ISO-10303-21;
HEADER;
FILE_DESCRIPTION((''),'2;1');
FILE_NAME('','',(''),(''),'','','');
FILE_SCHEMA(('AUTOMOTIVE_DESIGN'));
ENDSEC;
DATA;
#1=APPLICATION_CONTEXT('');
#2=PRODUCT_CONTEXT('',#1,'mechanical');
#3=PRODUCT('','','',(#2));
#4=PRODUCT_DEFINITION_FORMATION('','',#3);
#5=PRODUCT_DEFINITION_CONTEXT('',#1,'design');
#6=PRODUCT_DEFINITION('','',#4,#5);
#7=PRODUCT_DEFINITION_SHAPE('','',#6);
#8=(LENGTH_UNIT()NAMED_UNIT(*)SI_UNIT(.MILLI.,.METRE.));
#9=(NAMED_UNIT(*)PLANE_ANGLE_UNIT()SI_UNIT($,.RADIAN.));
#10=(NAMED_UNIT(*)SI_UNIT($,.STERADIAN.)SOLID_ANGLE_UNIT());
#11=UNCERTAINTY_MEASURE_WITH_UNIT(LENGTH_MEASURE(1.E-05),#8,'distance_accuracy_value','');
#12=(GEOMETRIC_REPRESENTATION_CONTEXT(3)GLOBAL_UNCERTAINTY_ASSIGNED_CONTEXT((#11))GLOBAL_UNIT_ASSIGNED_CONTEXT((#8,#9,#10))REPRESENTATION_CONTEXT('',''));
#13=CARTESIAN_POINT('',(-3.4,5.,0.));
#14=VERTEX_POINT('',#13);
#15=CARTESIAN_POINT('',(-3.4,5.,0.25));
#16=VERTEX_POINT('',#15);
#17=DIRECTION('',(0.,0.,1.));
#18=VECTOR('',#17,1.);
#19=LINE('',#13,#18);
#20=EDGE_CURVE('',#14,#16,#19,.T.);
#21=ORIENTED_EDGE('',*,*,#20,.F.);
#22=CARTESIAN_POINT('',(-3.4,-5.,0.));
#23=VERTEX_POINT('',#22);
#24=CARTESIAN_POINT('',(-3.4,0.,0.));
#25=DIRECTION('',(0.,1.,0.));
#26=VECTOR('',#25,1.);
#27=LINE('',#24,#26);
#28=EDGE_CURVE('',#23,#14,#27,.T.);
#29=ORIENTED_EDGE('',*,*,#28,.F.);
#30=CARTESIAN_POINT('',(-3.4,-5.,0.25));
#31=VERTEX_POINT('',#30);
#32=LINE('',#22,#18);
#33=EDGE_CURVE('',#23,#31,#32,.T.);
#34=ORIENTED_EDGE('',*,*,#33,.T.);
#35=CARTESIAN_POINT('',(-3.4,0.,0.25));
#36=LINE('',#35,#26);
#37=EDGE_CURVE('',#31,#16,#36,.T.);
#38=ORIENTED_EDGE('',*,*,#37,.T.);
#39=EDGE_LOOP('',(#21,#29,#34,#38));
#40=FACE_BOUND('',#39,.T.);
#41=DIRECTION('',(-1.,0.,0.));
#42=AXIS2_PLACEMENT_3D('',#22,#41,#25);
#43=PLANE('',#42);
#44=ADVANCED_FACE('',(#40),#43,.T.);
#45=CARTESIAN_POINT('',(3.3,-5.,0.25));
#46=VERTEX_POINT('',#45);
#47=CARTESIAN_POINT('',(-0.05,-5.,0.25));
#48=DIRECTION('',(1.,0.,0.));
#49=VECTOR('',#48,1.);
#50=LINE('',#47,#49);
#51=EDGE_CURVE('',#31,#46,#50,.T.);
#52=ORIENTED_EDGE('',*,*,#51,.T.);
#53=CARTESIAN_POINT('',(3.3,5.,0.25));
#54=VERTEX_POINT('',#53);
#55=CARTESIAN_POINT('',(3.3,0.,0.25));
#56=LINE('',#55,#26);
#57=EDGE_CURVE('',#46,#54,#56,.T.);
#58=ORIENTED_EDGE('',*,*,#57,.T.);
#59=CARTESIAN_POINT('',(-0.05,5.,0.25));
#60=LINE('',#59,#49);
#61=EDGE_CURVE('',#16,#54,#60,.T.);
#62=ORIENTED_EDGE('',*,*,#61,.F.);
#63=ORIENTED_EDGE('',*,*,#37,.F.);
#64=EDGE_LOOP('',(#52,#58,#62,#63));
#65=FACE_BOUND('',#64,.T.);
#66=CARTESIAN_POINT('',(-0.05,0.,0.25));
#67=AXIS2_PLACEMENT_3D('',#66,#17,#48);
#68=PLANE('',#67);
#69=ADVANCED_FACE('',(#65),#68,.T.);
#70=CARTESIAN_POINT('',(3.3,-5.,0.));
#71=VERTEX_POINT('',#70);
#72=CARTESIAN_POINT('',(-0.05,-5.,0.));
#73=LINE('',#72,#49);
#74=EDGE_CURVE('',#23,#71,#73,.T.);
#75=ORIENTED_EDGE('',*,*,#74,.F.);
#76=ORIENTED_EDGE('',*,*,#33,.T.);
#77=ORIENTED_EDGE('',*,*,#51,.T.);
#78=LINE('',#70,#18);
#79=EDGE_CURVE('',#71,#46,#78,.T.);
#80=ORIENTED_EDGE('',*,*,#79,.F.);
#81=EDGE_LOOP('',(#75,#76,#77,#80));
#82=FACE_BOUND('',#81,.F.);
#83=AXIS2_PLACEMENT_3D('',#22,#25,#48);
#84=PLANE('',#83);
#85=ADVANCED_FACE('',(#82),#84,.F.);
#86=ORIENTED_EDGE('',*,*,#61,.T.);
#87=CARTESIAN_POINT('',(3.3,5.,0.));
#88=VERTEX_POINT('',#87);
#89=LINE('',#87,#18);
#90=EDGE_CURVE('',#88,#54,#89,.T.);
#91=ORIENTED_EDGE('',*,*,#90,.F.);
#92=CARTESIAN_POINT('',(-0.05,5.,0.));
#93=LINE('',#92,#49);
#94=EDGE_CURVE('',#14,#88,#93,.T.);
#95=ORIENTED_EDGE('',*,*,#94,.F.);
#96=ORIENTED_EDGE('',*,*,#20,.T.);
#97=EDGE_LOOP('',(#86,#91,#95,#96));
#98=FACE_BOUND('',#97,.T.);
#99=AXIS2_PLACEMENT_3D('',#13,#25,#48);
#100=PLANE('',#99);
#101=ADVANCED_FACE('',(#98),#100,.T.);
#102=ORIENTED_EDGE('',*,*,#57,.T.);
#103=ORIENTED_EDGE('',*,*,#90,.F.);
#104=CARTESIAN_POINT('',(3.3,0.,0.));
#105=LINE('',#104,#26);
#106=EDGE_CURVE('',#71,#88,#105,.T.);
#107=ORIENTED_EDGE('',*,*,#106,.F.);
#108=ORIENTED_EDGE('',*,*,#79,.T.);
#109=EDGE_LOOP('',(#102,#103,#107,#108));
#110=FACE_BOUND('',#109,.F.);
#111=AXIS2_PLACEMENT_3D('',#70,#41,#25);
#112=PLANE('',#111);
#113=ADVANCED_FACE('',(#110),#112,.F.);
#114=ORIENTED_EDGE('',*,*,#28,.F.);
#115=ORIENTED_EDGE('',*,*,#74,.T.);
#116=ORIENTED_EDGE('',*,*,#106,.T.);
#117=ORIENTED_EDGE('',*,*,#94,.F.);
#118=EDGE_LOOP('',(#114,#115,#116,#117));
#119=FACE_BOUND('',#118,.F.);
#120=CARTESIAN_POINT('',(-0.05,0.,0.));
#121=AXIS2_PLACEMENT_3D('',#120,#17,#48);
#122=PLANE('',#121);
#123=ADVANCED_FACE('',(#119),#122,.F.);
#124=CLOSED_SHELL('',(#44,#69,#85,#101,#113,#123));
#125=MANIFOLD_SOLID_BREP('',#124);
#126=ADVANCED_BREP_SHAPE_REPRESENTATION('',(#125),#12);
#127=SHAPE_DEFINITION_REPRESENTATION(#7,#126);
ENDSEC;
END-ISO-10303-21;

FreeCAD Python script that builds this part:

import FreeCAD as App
import Part
import Sketcher

V = App.Vector
Q = App.Units.Quantity


def add_polygon(sketch, points):
    """Adds a closed chain of lines whose ends are joined by coincident constraints."""
    first, n = sketch.GeometryCount, len(points)
    for a, b in zip(points, points[1:] + points[:1]):
        sketch.addGeometry(Part.LineSegment(App.Vector(*a, 0), App.Vector(*b, 0)), False)
    for i in range(n):
        sketch.addConstraint(Sketcher.Constraint("Coincident", first + i, 2, first + (i + 1) % n, 1))

doc = App.newDocument("Part")
body = doc.addObject("PartDesign::Body", "Body")

sketch1 = body.newObject("Sketcher::SketchObject", "Sketch")
sketch1.AttachmentSupport = (doc.getObject("XY_Plane"), [""])
sketch1.MapMode = "FlatFace"
add_polygon(sketch1, [(-3, 5), (-3, -5), (3, -5), (3, 5)])
sketch1.addConstraint(Sketcher.Constraint("Vertical", 0))
sketch1.addConstraint(Sketcher.Constraint("Horizontal", 1))
sketch1.addConstraint(Sketcher.Constraint("Vertical", 2))
sketch1.addConstraint(Sketcher.Constraint("Horizontal", 3))
sketch1.addConstraint(Sketcher.Constraint("DistanceY", 0, 2, 0, 1, Q("10 mm")))
sketch1.addConstraint(Sketcher.Constraint("DistanceX", 1, 1, 1, 2, Q("6.7 mm")))
sketch1.addConstraint(Sketcher.Constraint("DistanceY", 0, 2, -1, 1, Q("5 mm")))
sketch1.addConstraint(Sketcher.Constraint("DistanceX", 0, 2, -1, 1, Q("3.4 mm")))
pad1 = body.newObject("PartDesign::Pad", "Pad")
pad1.Profile = sketch1
pad1.Length = 0.25

doc.recompute()
